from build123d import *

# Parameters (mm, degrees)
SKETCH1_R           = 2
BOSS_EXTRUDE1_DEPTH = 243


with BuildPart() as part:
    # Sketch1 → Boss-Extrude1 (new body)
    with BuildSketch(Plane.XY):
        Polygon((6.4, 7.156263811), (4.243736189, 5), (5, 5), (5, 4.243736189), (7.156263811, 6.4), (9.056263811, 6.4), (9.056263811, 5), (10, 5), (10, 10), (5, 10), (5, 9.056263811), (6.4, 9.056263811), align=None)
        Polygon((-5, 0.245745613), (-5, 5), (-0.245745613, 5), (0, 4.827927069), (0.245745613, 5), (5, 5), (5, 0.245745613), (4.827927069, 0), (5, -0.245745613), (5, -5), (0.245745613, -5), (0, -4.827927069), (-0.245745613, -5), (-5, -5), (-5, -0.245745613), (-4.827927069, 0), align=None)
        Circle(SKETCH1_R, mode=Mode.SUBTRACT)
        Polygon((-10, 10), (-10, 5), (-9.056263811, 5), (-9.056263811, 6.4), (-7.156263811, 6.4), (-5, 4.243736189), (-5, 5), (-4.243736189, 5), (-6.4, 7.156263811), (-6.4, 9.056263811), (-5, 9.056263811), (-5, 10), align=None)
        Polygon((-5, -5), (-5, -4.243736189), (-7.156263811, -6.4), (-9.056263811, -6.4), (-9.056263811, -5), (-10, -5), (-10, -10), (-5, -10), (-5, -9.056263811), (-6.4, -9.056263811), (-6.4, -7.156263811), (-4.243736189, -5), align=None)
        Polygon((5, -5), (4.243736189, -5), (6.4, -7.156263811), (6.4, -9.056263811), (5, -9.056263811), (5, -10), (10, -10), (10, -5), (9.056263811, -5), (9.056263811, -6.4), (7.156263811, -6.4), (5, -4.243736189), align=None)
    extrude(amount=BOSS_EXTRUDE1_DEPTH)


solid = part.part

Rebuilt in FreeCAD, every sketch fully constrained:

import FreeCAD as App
import Part
import Sketcher

V = App.Vector
Q = App.Units.Quantity

doc = App.newDocument("Part")
body = doc.addObject("PartDesign::Body", "Body")

# Sketch on XY plane
sketch1 = body.newObject("Sketcher::SketchObject", "Sketch")
sketch1.AttachmentSupport = (doc.getObject("XY_Plane"), [""])
sketch1.MapMode = "FlatFace"
sketch1.addGeometry(Part.LineSegment(V(6.4, 7.16, 0), V(4.24, 5, 0)), False)
sketch1.addGeometry(Part.LineSegment(V(4.24, 5, 0), V(0.25, 5, 0)), False)
sketch1.addGeometry(Part.LineSegment(V(0.25, 5, 0), V(0, 4.83, 0)), False)
sketch1.addGeometry(Part.LineSegment(V(0, 4.83, 0), V(-0.25, 5, 0)), False)
sketch1.addGeometry(Part.LineSegment(V(-0.25, 5, 0), V(-4.24, 5, 0)), False)
sketch1.addGeometry(Part.LineSegment(V(-4.24, 5, 0), V(-6.4, 7.16, 0)), False)
sketch1.addGeometry(Part.LineSegment(V(-6.4, 7.16, 0), V(-6.4, 9.06, 0)), False)
sketch1.addGeometry(Part.LineSegment(V(-6.4, 9.06, 0), V(-5, 9.06, 0)), False)
sketch1.addGeometry(Part.LineSegment(V(-5, 9.06, 0), V(-5, 10, 0)), False)
sketch1.addGeometry(Part.LineSegment(V(-5, 10, 0), V(-10, 10, 0)), False)
sketch1.addGeometry(Part.LineSegment(V(-10, 10, 0), V(-10, 5, 0)), False)
sketch1.addGeometry(Part.LineSegment(V(-10, 5, 0), V(-9.06, 5, 0)), False)
sketch1.addGeometry(Part.LineSegment(V(-9.06, 5, 0), V(-9.06, 6.4, 0)), False)
sketch1.addGeometry(Part.LineSegment(V(-9.06, 6.4, 0), V(-7.16, 6.4, 0)), False)
sketch1.addGeometry(Part.LineSegment(V(-7.16, 6.4, 0), V(-5, 4.24, 0)), False)
sketch1.addGeometry(Part.LineSegment(V(-5, 4.24, 0), V(-5, 0.25, 0)), False)
sketch1.addGeometry(Part.LineSegment(V(-5, 0.25, 0), V(-4.83, 0, 0)), False)
sketch1.addGeometry(Part.LineSegment(V(-4.83, 0, 0), V(-5, -0.25, 0)), False)
sketch1.addGeometry(Part.LineSegment(V(-5, -0.25, 0), V(-5, -4.24, 0)), False)
sketch1.addGeometry(Part.LineSegment(V(-5, -4.24, 0), V(-7.16, -6.4, 0)), False)
sketch1.addGeometry(Part.LineSegment(V(-7.16, -6.4, 0), V(-9.06, -6.4, 0)), False)
sketch1.addGeometry(Part.LineSegment(V(-9.06, -6.4, 0), V(-9.06, -5, 0)), False)
sketch1.addGeometry(Part.LineSegment(V(-9.06, -5, 0), V(-10, -5, 0)), False)
sketch1.addGeometry(Part.LineSegment(V(-10, -5, 0), V(-10, -10, 0)), False)
sketch1.addGeometry(Part.LineSegment(V(-10, -10, 0), V(-5, -10, 0)), False)
sketch1.addGeometry(Part.LineSegment(V(-5, -10, 0), V(-5, -9.06, 0)), False)
sketch1.addGeometry(Part.LineSegment(V(-5, -9.06, 0), V(-6.4, -9.06, 0)), False)
sketch1.addGeometry(Part.LineSegment(V(-6.4, -9.06, 0), V(-6.4, -7.16, 0)), False)
sketch1.addGeometry(Part.LineSegment(V(-6.4, -7.16, 0), V(-4.24, -5, 0)), False)
sketch1.addGeometry(Part.LineSegment(V(-4.24, -5, 0), V(-0.25, -5, 0)), False)
sketch1.addGeometry(Part.LineSegment(V(-0.25, -5, 0), V(0, -4.83, 0)), False)
sketch1.addGeometry(Part.LineSegment(V(0, -4.83, 0), V(0.25, -5, 0)), False)
sketch1.addGeometry(Part.LineSegment(V(0.25, -5, 0), V(4.24, -5, 0)), False)
sketch1.addGeometry(Part.LineSegment(V(4.24, -5, 0), V(6.4, -7.16, 0)), False)
sketch1.addGeometry(Part.LineSegment(V(6.4, -7.16, 0), V(6.4, -9.06, 0)), False)
sketch1.addGeometry(Part.LineSegment(V(6.4, -9.06, 0), V(5, -9.06, 0)), False)
sketch1.addGeometry(Part.LineSegment(V(5, -9.06, 0), V(5, -10, 0)), False)
sketch1.addGeometry(Part.LineSegment(V(5, -10, 0), V(10, -10, 0)), False)
sketch1.addGeometry(Part.LineSegment(V(10, -10, 0), V(10, -5, 0)), False)
sketch1.addGeometry(Part.LineSegment(V(10, -5, 0), V(9.06, -5, 0)), False)
sketch1.addGeometry(Part.LineSegment(V(9.06, -5, 0), V(9.06, -6.4, 0)), False)
sketch1.addGeometry(Part.LineSegment(V(9.06, -6.4, 0), V(7.16, -6.4, 0)), False)
sketch1.addGeometry(Part.LineSegment(V(7.16, -6.4, 0), V(5, -4.24, 0)), False)
sketch1.addGeometry(Part.LineSegment(V(5, -4.24, 0), V(5, -0.25, 0)), False)
sketch1.addGeometry(Part.LineSegment(V(5, -0.25, 0), V(4.83, 0, 0)), False)
sketch1.addGeometry(Part.LineSegment(V(4.83, 0, 0), V(5, 0.25, 0)), False)
sketch1.addGeometry(Part.LineSegment(V(5, 0.25, 0), V(5, 4.24, 0)), False)
sketch1.addGeometry(Part.LineSegment(V(5, 4.24, 0), V(7.16, 6.4, 0)), False)
sketch1.addGeometry(Part.LineSegment(V(7.16, 6.4, 0), V(9.06, 6.4, 0)), False)
sketch1.addGeometry(Part.LineSegment(V(9.06, 6.4, 0), V(9.06, 5, 0)), False)
sketch1.addGeometry(Part.LineSegment(V(9.06, 5, 0), V(10, 5, 0)), False)
sketch1.addGeometry(Part.LineSegment(V(10, 5, 0), V(10, 10, 0)), False)
sketch1.addGeometry(Part.LineSegment(V(10, 10, 0), V(5, 10, 0)), False)
sketch1.addGeometry(Part.LineSegment(V(5, 10, 0), V(5, 9.06, 0)), False)
sketch1.addGeometry(Part.LineSegment(V(5, 9.06, 0), V(6.4, 9.06, 0)), False)
sketch1.addGeometry(Part.LineSegment(V(6.4, 9.06, 0), V(6.4, 7.16, 0)), False)
sketch1.addGeometry(Part.Circle(V(0, 0, 0), V(0, 0, 1), 2), False)
sketch1.addConstraint(Sketcher.Constraint("Coincident", 0, 2, 1, 1))
sketch1.addConstraint(Sketcher.Constraint("Coincident", 1, 2, 2, 1))
sketch1.addConstraint(Sketcher.Constraint("Coincident", 2, 2, 3, 1))
sketch1.addConstraint(Sketcher.Constraint("Coincident", 3, 2, 4, 1))
sketch1.addConstraint(Sketcher.Constraint("Coincident", 4, 2, 5, 1))
sketch1.addConstraint(Sketcher.Constraint("Coincident", 5, 2, 6, 1))
sketch1.addConstraint(Sketcher.Constraint("Coincident", 6, 2, 7, 1))
sketch1.addConstraint(Sketcher.Constraint("Coincident", 7, 2, 8, 1))
sketch1.addConstraint(Sketcher.Constraint("Coincident", 8, 2, 9, 1))
sketch1.addConstraint(Sketcher.Constraint("Coincident", 9, 2, 10, 1))
sketch1.addConstraint(Sketcher.Constraint("Coincident", 10, 2, 11, 1))
sketch1.addConstraint(Sketcher.Constraint("Coincident", 11, 2, 12, 1))
sketch1.addConstraint(Sketcher.Constraint("Coincident", 12, 2, 13, 1))
sketch1.addConstraint(Sketcher.Constraint("Coincident", 13, 2, 14, 1))
sketch1.addConstraint(Sketcher.Constraint("Coincident", 14, 2, 15, 1))
sketch1.addConstraint(Sketcher.Constraint("Coincident", 15, 2, 16, 1))
sketch1.addConstraint(Sketcher.Constraint("Coincident", 16, 2, 17, 1))
sketch1.addConstraint(Sketcher.Constraint("Coincident", 17, 2, 18, 1))
sketch1.addConstraint(Sketcher.Constraint("Coincident", 18, 2, 19, 1))
sketch1.addConstraint(Sketcher.Constraint("Coincident", 19, 2, 20, 1))
sketch1.addConstraint(Sketcher.Constraint("Coincident", 20, 2, 21, 1))
sketch1.addConstraint(Sketcher.Constraint("Coincident", 21, 2, 22, 1))
sketch1.addConstraint(Sketcher.Constraint("Coincident", 22, 2, 23, 1))
sketch1.addConstraint(Sketcher.Constraint("Coincident", 23, 2, 24, 1))
sketch1.addConstraint(Sketcher.Constraint("Coincident", 24, 2, 25, 1))
sketch1.addConstraint(Sketcher.Constraint("Coincident", 25, 2, 26, 1))
sketch1.addConstraint(Sketcher.Constraint("Coincident", 26, 2, 27, 1))
sketch1.addConstraint(Sketcher.Constraint("Coincident", 27, 2, 28, 1))
sketch1.addConstraint(Sketcher.Constraint("Coincident", 28, 2, 29, 1))
sketch1.addConstraint(Sketcher.Constraint("Coincident", 29, 2, 30, 1))
sketch1.addConstraint(Sketcher.Constraint("Coincident", 30, 2, 31, 1))
sketch1.addConstraint(Sketcher.Constraint("Coincident", 31, 2, 32, 1))
sketch1.addConstraint(Sketcher.Constraint("Coincident", 32, 2, 33, 1))
sketch1.addConstraint(Sketcher.Constraint("Coincident", 33, 2, 34, 1))
sketch1.addConstraint(Sketcher.Constraint("Coincident", 34, 2, 35, 1))
sketch1.addConstraint(Sketcher.Constraint("Coincident", 35, 2, 36, 1))
sketch1.addConstraint(Sketcher.Constraint("Coincident", 36, 2, 37, 1))
sketch1.addConstraint(Sketcher.Constraint("Coincident", 37, 2, 38, 1))
sketch1.addConstraint(Sketcher.Constraint("Coincident", 38, 2, 39, 1))
sketch1.addConstraint(Sketcher.Constraint("Coincident", 39, 2, 40, 1))
sketch1.addConstraint(Sketcher.Constraint("Coincident", 40, 2, 41, 1))
sketch1.addConstraint(Sketcher.Constraint("Coincident", 41, 2, 42, 1))
sketch1.addConstraint(Sketcher.Constraint("Coincident", 42, 2, 43, 1))
sketch1.addConstraint(Sketcher.Constraint("Coincident", 43, 2, 44, 1))
sketch1.addConstraint(Sketcher.Constraint("Coincident", 44, 2, 45, 1))
sketch1.addConstraint(Sketcher.Constraint("Coincident", 45, 2, 46, 1))
sketch1.addConstraint(Sketcher.Constraint("Coincident", 46, 2, 47, 1))
sketch1.addConstraint(Sketcher.Constraint("Coincident", 47, 2, 48, 1))
sketch1.addConstraint(Sketcher.Constraint("Coincident", 48, 2, 49, 1))
sketch1.addConstraint(Sketcher.Constraint("Coincident", 49, 2, 50, 1))
sketch1.addConstraint(Sketcher.Constraint("Coincident", 50, 2, 51, 1))
sketch1.addConstraint(Sketcher.Constraint("Coincident", 51, 2, 52, 1))
sketch1.addConstraint(Sketcher.Constraint("Coincident", 52, 2, 53, 1))
sketch1.addConstraint(Sketcher.Constraint("Coincident", 53, 2, 54, 1))
sketch1.addConstraint(Sketcher.Constraint("Coincident", 54, 2, 55, 1))
sketch1.addConstraint(Sketcher.Constraint("Coincident", 55, 2, 0, 1))
sketch1.addConstraint(Sketcher.Constraint("Horizontal", 1))
sketch1.addConstraint(Sketcher.Constraint("Horizontal", 4))
sketch1.addConstraint(Sketcher.Constraint("Vertical", 6))
sketch1.addConstraint(Sketcher.Constraint("Horizontal", 7))
sketch1.addConstraint(Sketcher.Constraint("Vertical", 8))
sketch1.addConstraint(Sketcher.Constraint("Horizontal", 9))
sketch1.addConstraint(Sketcher.Constraint("Vertical", 10))
sketch1.addConstraint(Sketcher.Constraint("Horizontal", 11))
sketch1.addConstraint(Sketcher.Constraint("Vertical", 12))
sketch1.addConstraint(Sketcher.Constraint("Horizontal", 13))
sketch1.addConstraint(Sketcher.Constraint("Vertical", 15))
sketch1.addConstraint(Sketcher.Constraint("Vertical", 18))
sketch1.addConstraint(Sketcher.Constraint("Horizontal", 20))
sketch1.addConstraint(Sketcher.Constraint("Vertical", 21))
sketch1.addConstraint(Sketcher.Constraint("Horizontal", 22))
sketch1.addConstraint(Sketcher.Constraint("Vertical", 23))
sketch1.addConstraint(Sketcher.Constraint("Horizontal", 24))
sketch1.addConstraint(Sketcher.Constraint("Vertical", 25))
sketch1.addConstraint(Sketcher.Constraint("Horizontal", 26))
sketch1.addConstraint(Sketcher.Constraint("Vertical", 27))
sketch1.addConstraint(Sketcher.Constraint("Horizontal", 29))
sketch1.addConstraint(Sketcher.Constraint("Horizontal", 32))
sketch1.addConstraint(Sketcher.Constraint("Vertical", 34))
sketch1.addConstraint(Sketcher.Constraint("Horizontal", 35))
sketch1.addConstraint(Sketcher.Constraint("Vertical", 36))
sketch1.addConstraint(Sketcher.Constraint("Horizontal", 37))
sketch1.addConstraint(Sketcher.Constraint("Vertical", 38))
sketch1.addConstraint(Sketcher.Constraint("Horizontal", 39))
sketch1.addConstraint(Sketcher.Constraint("Vertical", 40))
sketch1.addConstraint(Sketcher.Constraint("Horizontal", 41))
sketch1.addConstraint(Sketcher.Constraint("Vertical", 43))
sketch1.addConstraint(Sketcher.Constraint("Vertical", 46))
sketch1.addConstraint(Sketcher.Constraint("Horizontal", 48))
sketch1.addConstraint(Sketcher.Constraint("Vertical", 49))
sketch1.addConstraint(Sketcher.Constraint("Horizontal", 50))
sketch1.addConstraint(Sketcher.Constraint("Vertical", 51))
sketch1.addConstraint(Sketcher.Constraint("Horizontal", 52))
sketch1.addConstraint(Sketcher.Constraint("Vertical", 53))
sketch1.addConstraint(Sketcher.Constraint("Horizontal", 54))
sketch1.addConstraint(Sketcher.Constraint("Vertical", 55))
sketch1.addConstraint(Sketcher.Constraint("Coincident", 56, 3, -1, 1))
sketch1.addConstraint(Sketcher.Constraint("Symmetric", 0, 2, 28, 2, -1, 1))
sketch1.addConstraint(Sketcher.Constraint("Symmetric", 2, 2, 30, 2, -1, 1))
sketch1.addConstraint(Sketcher.Constraint("Symmetric", 3, 2, 31, 2, -1, 1))
sketch1.addConstraint(Sketcher.Constraint("Symmetric", 5, 2, 33, 2, -1, 1))
sketch1.addConstraint(Sketcher.Constraint("Symmetric", 7, 2, 35, 2, -1, 1))
sketch1.addConstraint(Sketcher.Constraint("Symmetric", 9, 2, 37, 2, -1, 1))
sketch1.addConstraint(Sketcher.Constraint("Symmetric", 11, 2, 39, 2, -1, 1))
sketch1.addConstraint(Sketcher.Constraint("Symmetric", 13, 2, 41, 2, -1, 1))
sketch1.addConstraint(Sketcher.Constraint("Symmetric", 14, 2, 42, 2, -1, 1))
sketch1.addConstraint(Sketcher.Constraint("Symmetric", 16, 2, 44, 2, -1, 1))
sketch1.addConstraint(Sketcher.Constraint("Symmetric", 17, 2, 45, 2, -1, 1))
sketch1.addConstraint(Sketcher.Constraint("Symmetric", 19, 2, 47, 2, -1, 1))
sketch1.addConstraint(Sketcher.Constraint("Symmetric", 21, 2, 49, 2, -1, 1))
sketch1.addConstraint(Sketcher.Constraint("Symmetric", 23, 2, 51, 2, -1, 1))
sketch1.addConstraint(Sketcher.Constraint("Symmetric", 25, 2, 53, 2, -1, 1))
sketch1.addConstraint(Sketcher.Constraint("Symmetric", 27, 2, 55, 2, -1, 1))
sketch1.addConstraint(Sketcher.Constraint("Symmetric", 1, 2, 3, 2, -2))
sketch1.addConstraint(Sketcher.Constraint("Symmetric", 27, 2, 33, 2, -2))
sketch1.addConstraint(Sketcher.Constraint("Symmetric", 25, 2, 35, 2, -2))
sketch1.addConstraint(Sketcher.Constraint("Symmetric", 23, 2, 37, 2, -2))
sketch1.addConstraint(Sketcher.Constraint("Symmetric", 21, 2, 39, 2, -2))
sketch1.addConstraint(Sketcher.Constraint("Symmetric", 19, 2, 41, 2, -2))
sketch1.addConstraint(Sketcher.Constraint("Symmetric", 18, 2, 42, 2, -2))
sketch1.addConstraint(Sketcher.Constraint("PointOnObject", 2, 2, -2))
sketch1.addConstraint(Sketcher.Constraint("PointOnObject", 16, 2, -1))
sketch1.addConstraint(Sketcher.Constraint("Perpendicular", 0, 5))
sketch1.addConstraint(Sketcher.Constraint("Parallel", 5, 14))
sketch1.addConstraint(Sketcher.Constraint("Perpendicular", 2, 16))
sketch1.addConstraint(Sketcher.Constraint("Perpendicular", 3, 17))
sketch1.addConstraint(Sketcher.Constraint("Perpendicular", 14, 19))
sketch1.addConstraint(Sketcher.Constraint("Perpendicular", 16, 30))
sketch1.addConstraint(Sketcher.Constraint("Perpendicular", 28, 33))
sketch1.addConstraint(Sketcher.Constraint("Perpendicular", 30, 44))
sketch1.addConstraint(Sketcher.Constraint("Perpendicular", 42, 47))
sketch1.addConstraint(Sketcher.Constraint("Horizontal", 4, 2, 10, 2))
sketch1.addConstraint(Sketcher.Constraint("Vertical", 8, 2, 14, 2))
sketch1.addConstraint(Sketcher.Constraint("Equal", 48, 6))
sketch1.addConstraint(Sketcher.Constraint("Equal", 50, 8))
sketch1.addConstraint(Sketcher.Constraint("Equal", 52, 10))
sketch1.addConstraint(Sketcher.Constraint("Equal", 54, 12))
sketch1.addConstraint(Sketcher.Constraint("Equal", 32, 15))
sketch1.addConstraint(Sketcher.Constraint("Equal", 3, 16))
sketch1.addConstraint(Sketcher.Constraint("Diameter", 56, 4.0))
sketch1.addConstraint(Sketcher.Constraint("DistanceX", 9, 2, 9, 1, 5.0))
sketch1.addConstraint(Sketcher.Constraint("Angle", 2, Q("-145 deg")))
sketch1.addConstraint(Sketcher.Constraint("DistanceX", 7, 1, 7, 2, 1.4))
sketch1.addConstraint(Sketcher.Constraint("DistanceX", 13, 1, 13, 2, 1.9))
sketch1.addConstraint(Sketcher.Constraint("DistanceY", -1, 1, 0, 2, 5.0))
sketch1.addConstraint(Sketcher.Constraint("Distance", 2, 0.3))
sketch1.addConstraint(Sketcher.Constraint("DistanceX", 1, 2, 1, 1, 3.997991))
pad1 = body.newObject("PartDesign::Pad", "Pad")
pad1.Profile = sketch1
pad1.Length = 243

doc.recompute()
